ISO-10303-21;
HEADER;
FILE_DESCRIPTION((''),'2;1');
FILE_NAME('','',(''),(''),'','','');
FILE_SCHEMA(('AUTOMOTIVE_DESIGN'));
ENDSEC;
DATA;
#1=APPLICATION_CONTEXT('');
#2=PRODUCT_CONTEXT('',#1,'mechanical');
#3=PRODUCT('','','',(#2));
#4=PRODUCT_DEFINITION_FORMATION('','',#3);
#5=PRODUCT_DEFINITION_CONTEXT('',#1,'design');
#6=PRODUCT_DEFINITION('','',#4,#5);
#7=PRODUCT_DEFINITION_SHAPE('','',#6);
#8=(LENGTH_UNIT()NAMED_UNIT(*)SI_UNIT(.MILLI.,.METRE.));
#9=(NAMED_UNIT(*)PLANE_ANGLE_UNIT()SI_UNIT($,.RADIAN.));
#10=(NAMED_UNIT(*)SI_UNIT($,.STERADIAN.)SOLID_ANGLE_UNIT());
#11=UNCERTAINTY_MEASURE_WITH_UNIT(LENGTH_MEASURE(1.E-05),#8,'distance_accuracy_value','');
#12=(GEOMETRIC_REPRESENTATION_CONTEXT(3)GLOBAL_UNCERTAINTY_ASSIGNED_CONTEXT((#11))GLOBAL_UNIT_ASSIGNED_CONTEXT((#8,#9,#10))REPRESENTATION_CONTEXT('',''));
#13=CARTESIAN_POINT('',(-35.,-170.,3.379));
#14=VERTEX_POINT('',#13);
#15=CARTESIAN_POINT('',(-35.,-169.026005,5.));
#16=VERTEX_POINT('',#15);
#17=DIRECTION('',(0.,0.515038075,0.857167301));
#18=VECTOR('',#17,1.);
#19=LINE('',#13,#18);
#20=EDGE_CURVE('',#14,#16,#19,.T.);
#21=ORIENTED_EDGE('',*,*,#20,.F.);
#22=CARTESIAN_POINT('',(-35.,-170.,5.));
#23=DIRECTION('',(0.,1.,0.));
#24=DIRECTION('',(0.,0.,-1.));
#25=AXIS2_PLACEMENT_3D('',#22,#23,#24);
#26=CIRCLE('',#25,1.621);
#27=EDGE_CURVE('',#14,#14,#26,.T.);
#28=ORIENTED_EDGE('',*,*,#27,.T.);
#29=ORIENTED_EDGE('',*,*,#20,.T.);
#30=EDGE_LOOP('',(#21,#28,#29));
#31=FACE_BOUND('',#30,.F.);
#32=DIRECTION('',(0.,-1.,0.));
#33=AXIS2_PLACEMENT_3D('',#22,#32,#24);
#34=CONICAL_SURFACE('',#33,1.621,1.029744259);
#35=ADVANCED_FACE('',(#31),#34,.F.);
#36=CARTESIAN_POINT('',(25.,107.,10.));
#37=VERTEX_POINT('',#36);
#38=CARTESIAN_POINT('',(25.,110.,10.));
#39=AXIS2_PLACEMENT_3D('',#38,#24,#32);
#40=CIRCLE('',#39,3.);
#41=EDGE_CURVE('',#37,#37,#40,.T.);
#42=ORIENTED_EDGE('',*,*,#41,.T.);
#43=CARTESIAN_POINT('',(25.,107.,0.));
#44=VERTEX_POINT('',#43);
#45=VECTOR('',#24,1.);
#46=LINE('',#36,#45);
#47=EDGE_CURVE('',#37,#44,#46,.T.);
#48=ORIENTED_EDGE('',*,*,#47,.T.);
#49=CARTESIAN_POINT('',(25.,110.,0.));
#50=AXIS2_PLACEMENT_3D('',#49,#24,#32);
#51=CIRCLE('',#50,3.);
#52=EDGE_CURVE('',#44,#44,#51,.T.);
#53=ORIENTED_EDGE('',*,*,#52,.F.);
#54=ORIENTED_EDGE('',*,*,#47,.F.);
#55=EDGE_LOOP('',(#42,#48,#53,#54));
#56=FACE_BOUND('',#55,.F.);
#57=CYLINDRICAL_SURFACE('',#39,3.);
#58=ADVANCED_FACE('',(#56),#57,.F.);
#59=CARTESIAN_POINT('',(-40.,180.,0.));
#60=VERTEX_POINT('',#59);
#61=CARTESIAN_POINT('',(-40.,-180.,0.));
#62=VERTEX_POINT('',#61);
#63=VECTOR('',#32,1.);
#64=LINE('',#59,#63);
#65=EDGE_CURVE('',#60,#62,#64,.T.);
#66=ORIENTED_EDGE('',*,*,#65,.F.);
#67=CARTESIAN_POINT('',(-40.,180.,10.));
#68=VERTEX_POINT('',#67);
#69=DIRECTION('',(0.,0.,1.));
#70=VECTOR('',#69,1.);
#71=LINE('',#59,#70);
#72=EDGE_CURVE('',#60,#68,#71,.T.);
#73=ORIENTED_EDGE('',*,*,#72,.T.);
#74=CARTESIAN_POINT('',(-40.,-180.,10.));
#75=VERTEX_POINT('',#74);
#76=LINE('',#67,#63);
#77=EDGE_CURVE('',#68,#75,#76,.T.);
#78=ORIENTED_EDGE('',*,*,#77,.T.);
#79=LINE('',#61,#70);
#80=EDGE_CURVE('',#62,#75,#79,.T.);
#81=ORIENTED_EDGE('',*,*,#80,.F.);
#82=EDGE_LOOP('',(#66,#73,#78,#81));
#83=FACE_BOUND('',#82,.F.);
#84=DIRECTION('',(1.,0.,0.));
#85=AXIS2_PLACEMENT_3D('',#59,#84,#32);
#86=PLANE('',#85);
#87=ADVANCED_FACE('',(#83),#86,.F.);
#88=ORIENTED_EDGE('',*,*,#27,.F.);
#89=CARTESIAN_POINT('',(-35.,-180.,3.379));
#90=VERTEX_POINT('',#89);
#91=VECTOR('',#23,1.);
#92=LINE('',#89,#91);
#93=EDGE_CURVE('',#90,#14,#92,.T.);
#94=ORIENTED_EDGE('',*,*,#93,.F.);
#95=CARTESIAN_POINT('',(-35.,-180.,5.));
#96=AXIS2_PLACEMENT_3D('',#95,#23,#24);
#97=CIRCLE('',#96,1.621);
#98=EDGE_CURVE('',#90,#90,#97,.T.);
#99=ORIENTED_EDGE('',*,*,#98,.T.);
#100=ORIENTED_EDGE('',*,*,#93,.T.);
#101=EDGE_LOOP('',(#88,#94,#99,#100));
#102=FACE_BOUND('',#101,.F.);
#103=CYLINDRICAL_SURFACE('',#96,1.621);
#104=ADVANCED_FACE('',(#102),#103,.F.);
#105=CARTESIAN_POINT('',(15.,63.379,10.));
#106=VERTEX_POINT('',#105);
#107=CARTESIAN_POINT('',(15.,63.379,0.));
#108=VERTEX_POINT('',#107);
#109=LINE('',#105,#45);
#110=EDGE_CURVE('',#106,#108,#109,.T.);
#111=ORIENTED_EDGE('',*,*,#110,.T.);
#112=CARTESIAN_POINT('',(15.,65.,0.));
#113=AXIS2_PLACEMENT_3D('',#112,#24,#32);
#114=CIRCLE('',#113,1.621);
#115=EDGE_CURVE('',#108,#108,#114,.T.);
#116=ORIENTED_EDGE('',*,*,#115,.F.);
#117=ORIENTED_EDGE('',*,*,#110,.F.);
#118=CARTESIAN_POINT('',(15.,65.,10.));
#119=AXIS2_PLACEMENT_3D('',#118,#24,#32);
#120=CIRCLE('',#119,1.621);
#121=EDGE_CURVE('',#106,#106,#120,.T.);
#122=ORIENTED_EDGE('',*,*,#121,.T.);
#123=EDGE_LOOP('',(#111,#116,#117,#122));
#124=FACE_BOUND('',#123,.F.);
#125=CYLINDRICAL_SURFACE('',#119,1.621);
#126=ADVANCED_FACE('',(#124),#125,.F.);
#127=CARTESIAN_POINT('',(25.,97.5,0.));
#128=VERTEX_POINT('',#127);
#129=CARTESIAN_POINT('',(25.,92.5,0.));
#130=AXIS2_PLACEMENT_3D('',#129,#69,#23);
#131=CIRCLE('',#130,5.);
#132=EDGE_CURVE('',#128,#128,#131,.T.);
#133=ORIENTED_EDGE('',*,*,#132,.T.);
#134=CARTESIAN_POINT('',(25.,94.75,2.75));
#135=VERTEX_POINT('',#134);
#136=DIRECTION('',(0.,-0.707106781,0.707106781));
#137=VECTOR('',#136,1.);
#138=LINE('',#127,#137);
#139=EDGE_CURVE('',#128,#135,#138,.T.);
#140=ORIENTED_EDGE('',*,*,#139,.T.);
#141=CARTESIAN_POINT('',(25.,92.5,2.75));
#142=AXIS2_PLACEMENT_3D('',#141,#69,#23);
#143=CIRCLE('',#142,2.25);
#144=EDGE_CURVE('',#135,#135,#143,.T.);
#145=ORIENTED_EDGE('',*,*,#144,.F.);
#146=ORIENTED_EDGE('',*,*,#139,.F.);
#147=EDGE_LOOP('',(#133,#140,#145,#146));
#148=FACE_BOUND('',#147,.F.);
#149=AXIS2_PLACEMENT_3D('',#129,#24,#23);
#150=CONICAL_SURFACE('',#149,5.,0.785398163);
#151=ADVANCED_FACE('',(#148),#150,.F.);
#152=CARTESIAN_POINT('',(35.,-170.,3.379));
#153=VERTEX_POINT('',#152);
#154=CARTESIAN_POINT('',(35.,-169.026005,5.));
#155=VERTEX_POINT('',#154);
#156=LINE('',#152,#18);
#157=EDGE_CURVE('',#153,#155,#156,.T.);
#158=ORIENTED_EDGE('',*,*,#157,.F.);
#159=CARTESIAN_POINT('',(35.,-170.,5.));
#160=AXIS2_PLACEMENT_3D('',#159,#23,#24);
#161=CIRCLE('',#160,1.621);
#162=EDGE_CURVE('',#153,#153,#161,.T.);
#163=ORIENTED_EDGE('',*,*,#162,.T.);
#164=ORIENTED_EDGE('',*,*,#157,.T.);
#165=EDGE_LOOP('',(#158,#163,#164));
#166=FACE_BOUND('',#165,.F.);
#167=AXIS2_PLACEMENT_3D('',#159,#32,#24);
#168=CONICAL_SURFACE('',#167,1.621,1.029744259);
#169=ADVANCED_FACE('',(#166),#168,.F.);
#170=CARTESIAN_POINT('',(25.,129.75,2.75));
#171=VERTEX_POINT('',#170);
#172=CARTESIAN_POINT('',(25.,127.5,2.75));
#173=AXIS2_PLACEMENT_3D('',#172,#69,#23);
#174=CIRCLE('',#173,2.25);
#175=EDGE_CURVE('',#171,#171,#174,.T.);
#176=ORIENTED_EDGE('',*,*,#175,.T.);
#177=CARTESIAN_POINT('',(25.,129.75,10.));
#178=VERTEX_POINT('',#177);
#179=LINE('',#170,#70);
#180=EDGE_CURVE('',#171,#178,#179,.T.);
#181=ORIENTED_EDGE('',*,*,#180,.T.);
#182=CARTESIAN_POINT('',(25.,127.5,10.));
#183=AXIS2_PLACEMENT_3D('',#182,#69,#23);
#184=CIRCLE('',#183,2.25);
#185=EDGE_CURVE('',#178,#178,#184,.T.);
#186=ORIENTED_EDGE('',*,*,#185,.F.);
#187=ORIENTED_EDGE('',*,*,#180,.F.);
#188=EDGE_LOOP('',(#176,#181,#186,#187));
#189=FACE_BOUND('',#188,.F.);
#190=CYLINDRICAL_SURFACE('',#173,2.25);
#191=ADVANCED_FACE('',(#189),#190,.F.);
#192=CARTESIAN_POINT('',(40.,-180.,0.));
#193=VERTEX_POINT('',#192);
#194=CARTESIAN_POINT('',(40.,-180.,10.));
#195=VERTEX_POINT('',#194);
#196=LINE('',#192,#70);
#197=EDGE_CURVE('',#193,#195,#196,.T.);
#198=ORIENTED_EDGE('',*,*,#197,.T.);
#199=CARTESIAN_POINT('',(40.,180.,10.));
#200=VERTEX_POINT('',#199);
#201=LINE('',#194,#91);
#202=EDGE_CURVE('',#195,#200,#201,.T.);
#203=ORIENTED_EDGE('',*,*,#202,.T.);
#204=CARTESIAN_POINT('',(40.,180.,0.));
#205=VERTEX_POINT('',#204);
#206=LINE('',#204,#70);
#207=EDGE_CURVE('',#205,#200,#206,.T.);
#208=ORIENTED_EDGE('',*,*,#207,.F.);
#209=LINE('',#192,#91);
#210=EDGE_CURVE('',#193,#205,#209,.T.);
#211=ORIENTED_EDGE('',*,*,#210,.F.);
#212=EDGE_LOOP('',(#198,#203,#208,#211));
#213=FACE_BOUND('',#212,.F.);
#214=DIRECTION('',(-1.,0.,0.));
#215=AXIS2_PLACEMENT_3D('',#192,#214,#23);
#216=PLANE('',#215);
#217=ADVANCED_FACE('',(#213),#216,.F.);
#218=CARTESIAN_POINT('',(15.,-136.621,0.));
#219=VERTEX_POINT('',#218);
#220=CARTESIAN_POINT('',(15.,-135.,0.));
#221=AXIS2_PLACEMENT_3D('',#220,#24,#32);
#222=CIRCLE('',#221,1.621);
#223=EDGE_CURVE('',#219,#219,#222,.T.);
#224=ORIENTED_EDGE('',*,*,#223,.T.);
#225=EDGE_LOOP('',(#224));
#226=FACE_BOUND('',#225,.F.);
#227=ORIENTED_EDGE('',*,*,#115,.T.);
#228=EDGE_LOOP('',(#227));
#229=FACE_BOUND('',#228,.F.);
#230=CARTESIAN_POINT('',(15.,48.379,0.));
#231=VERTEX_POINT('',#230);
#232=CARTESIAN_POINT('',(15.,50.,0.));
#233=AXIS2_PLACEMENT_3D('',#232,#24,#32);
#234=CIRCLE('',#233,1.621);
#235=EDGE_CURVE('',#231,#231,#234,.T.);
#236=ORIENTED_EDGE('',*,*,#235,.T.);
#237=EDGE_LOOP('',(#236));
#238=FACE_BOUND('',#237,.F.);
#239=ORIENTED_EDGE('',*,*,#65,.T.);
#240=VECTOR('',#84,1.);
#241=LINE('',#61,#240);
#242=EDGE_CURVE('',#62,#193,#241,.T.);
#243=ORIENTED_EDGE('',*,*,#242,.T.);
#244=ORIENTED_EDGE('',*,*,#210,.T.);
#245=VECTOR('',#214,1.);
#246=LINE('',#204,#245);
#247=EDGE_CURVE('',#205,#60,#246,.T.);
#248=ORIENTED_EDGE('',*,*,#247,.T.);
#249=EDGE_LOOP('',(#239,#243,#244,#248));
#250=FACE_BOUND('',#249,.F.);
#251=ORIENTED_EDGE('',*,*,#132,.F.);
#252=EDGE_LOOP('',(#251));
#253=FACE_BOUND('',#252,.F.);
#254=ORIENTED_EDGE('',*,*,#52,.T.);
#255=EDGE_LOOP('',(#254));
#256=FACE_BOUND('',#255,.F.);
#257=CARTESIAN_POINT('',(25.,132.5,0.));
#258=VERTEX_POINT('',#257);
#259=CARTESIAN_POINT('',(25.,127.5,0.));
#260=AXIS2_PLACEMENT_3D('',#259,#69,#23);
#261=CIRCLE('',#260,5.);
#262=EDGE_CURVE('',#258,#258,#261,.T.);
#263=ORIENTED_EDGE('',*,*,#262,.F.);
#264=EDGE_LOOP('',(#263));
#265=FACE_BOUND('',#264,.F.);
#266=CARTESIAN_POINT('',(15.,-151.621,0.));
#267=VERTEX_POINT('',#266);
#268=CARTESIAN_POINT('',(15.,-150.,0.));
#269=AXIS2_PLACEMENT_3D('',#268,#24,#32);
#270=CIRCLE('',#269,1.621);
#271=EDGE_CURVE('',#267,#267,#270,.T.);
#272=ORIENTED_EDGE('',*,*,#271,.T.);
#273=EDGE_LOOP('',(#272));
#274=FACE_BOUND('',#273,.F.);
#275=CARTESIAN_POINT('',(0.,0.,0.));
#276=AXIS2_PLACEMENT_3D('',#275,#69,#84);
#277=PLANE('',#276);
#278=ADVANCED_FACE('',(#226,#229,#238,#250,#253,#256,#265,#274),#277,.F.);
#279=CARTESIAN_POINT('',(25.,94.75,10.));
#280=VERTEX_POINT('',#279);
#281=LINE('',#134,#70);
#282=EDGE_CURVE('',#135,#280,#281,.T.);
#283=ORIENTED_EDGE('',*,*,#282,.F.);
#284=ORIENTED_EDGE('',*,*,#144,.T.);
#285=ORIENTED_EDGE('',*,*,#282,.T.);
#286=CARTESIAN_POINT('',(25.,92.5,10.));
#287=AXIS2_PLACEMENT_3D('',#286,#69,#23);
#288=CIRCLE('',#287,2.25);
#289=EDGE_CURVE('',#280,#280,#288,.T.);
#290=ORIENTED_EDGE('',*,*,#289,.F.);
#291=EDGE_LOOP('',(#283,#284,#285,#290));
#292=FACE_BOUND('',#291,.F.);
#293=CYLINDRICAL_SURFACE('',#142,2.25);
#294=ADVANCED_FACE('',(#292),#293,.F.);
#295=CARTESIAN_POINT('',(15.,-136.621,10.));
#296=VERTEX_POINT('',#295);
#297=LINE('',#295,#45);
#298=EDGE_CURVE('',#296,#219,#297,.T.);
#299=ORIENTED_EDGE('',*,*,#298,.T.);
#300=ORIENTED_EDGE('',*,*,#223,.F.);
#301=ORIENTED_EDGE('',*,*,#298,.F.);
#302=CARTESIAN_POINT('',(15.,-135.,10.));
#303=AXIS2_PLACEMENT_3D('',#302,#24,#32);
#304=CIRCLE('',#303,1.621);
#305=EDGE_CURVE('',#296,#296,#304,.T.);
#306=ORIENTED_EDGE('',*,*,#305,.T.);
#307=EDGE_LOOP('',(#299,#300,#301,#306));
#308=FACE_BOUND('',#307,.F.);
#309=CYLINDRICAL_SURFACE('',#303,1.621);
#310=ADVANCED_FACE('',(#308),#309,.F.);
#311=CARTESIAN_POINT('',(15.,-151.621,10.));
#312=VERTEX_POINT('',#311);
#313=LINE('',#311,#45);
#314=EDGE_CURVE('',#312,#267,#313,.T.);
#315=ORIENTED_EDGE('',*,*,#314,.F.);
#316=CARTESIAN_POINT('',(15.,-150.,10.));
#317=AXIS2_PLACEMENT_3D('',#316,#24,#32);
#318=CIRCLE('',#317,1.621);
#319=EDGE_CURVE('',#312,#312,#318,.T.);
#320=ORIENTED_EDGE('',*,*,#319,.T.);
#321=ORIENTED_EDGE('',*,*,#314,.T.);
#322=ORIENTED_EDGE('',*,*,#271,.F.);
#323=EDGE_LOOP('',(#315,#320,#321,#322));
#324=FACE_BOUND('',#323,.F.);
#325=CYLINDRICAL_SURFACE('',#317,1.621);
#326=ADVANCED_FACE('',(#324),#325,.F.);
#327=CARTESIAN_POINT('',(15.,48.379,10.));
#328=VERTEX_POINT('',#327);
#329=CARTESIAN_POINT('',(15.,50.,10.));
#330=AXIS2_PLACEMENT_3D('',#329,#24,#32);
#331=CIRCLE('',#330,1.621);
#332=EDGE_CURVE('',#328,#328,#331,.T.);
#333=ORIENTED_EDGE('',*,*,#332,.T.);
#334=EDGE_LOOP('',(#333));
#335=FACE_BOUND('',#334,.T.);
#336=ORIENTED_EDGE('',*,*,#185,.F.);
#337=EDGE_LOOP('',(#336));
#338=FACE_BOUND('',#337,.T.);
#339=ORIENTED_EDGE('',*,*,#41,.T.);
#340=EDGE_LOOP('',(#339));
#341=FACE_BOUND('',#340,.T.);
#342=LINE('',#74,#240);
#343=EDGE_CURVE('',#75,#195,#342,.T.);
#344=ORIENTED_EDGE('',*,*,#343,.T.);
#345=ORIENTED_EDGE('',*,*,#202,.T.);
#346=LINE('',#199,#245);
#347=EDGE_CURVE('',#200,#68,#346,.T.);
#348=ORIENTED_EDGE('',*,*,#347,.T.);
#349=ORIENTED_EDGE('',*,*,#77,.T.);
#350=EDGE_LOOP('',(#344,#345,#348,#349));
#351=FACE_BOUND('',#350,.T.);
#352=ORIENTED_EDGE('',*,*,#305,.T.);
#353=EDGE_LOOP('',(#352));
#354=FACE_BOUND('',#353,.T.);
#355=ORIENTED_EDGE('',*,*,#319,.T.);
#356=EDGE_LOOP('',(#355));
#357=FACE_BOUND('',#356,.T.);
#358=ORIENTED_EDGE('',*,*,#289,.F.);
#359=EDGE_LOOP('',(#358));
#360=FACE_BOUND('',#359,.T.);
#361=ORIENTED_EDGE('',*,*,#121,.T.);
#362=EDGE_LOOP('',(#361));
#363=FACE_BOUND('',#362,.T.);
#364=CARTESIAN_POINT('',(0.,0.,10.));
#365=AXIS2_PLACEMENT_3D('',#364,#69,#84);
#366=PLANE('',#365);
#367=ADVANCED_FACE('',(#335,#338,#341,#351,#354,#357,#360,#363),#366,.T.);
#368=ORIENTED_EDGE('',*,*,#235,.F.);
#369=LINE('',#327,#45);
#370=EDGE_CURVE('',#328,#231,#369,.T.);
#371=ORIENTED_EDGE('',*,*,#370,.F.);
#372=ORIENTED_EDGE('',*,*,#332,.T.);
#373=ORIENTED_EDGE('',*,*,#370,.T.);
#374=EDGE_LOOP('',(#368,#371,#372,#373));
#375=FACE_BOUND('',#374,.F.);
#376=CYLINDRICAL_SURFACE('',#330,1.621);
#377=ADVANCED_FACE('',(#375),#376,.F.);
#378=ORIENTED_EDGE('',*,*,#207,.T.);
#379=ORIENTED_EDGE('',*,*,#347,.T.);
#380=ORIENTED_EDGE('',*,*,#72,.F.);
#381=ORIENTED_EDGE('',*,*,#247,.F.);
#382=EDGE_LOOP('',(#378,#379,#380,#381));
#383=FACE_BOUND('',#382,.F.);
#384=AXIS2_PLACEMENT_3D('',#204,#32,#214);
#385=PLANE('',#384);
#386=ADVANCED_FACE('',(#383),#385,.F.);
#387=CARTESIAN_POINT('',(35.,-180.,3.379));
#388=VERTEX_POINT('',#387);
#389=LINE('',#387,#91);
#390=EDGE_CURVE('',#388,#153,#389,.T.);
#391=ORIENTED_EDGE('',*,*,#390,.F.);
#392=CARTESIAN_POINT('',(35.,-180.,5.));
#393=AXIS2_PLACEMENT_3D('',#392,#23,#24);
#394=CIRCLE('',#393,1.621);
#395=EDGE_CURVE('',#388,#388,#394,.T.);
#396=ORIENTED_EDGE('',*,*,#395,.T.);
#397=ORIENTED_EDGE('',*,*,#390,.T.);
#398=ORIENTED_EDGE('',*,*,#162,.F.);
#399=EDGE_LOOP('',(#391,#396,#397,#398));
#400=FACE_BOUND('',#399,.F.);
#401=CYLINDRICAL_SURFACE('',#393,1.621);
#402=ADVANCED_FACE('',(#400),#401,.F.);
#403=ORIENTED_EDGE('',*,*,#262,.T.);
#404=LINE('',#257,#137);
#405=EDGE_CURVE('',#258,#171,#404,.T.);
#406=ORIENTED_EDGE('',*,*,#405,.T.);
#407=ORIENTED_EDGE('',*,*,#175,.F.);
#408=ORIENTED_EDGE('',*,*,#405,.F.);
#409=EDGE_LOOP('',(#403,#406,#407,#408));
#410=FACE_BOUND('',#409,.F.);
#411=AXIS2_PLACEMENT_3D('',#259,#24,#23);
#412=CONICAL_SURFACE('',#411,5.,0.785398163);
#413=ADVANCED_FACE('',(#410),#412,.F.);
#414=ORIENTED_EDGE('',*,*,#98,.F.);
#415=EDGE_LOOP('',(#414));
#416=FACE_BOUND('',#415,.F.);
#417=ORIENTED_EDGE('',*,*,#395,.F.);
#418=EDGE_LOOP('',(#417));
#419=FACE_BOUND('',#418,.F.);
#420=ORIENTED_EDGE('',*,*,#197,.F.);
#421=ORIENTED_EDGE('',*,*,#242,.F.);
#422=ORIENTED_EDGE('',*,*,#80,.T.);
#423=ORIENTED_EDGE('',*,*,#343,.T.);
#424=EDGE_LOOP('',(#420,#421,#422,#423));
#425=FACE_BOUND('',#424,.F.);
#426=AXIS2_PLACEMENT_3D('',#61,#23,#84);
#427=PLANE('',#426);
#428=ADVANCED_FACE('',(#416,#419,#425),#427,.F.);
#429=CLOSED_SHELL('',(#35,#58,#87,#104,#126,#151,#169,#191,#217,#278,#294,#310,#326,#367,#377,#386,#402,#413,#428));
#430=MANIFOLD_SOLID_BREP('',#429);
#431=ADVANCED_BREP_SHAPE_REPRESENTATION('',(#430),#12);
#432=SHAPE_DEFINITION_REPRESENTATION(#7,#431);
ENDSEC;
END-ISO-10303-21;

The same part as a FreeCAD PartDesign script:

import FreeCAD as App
import Part
import Sketcher

V = App.Vector
Q = App.Units.Quantity

doc = App.newDocument("Part")
body = doc.addObject("PartDesign::Body", "Body")

# Sketch on XY plane
sketch1 = body.newObject("Sketcher::SketchObject", "Sketch")
sketch1.AttachmentSupport = (doc.getObject("XY_Plane"), [""])
sketch1.MapMode = "FlatFace"
sketch1.addGeometry([
    Part.LineSegment(V(40, -180, 0), V(40, 180, 0)),
    Part.LineSegment(V(40, 180, 0), V(-40, 180, 0)),
    Part.LineSegment(V(-40, 180, 0), V(-40, -180, 0)),
    Part.LineSegment(V(-40, -180, 0), V(40, -180, 0)),
], False)
sketch1.addConstraint([
    Sketcher.Constraint("Coincident", 0, 2, 1, 1),
    Sketcher.Constraint("Coincident", 1, 2, 2, 1),
    Sketcher.Constraint("Coincident", 2, 2, 3, 1),
    Sketcher.Constraint("Coincident", 3, 2, 0, 1),
    Sketcher.Constraint("Vertical", 0),
    Sketcher.Constraint("Horizontal", 1),
    Sketcher.Constraint("Vertical", 2),
    Sketcher.Constraint("Horizontal", 3),
    Sketcher.Constraint("Symmetric", 0, 2, 2, 2, -1, 1),
    Sketcher.Constraint("DistanceX", 1, 2, 1, 1, Q("80 mm")),
    Sketcher.Constraint("DistanceY", 0, 1, 0, 2, Q("360 mm")),
])
pad1 = body.newObject("PartDesign::Pad", "Pad")
pad1.Profile = sketch1
pad1.Length = 10

# Sketch on XY plane
sketch2 = body.newObject("Sketcher::SketchObject", "Sketch001")
sketch2.AttachmentSupport = (doc.getObject("XY_Plane"), [""])
sketch2.MapMode = "FlatFace"
sketch2.AttachmentOffset = App.Placement(V(0, 0, 10), App.Rotation())
sketch2.addGeometry(Part.Circle(V(25, 110, 0), V(0, 0, 1), 3), False)
sketch2.addConstraint([
    Sketcher.Constraint("Diameter", 0, Q("6 mm")),
    Sketcher.Constraint("DistanceX", -1, 1, 0, 3, Q("25 mm")),
    Sketcher.Constraint("DistanceY", -1, 1, 0, 3, Q("110 mm")),
])
doc.recompute()
hole = body.newObject("PartDesign::Hole", "Hole")
hole.Profile = sketch2
hole.ThreadType = "None"
hole.Diameter = 6
hole.DepthType = "ThroughAll"

# Sketch on XY plane
sketch3 = body.newObject("Sketcher::SketchObject", "Sketch002")
sketch3.AttachmentSupport = (doc.getObject("XY_Plane"), [""])
sketch3.MapMode = "FlatFace"
sketch3.addGeometry([
    Part.Circle(V(25, 92.5, 0), V(0, 0, 1), 2.25),
    Part.Circle(V(25, 127.5, 0), V(0, 0, 1), 2.25),
], False)
sketch3.addConstraint([
    Sketcher.Constraint("Equal", 0, 1),
    Sketcher.Constraint("Vertical", 0, 3, 1, 3),
    Sketcher.Constraint("Diameter", 0, Q("4.5 mm")),
    Sketcher.Constraint("DistanceX", -1, 1, 0, 3, Q("25 mm")),
    Sketcher.Constraint("DistanceY", 0, 3, 1, 3, Q("35 mm")),
    Sketcher.Constraint("DistanceY", -1, 1, 0, 3, Q("92.5 mm")),
])
doc.recompute()
hole2 = body.newObject("PartDesign::Hole", "Hole001")
hole2.Profile = sketch3
hole2.ThreadType = "None"
hole2.Diameter = 4.5
hole2.DepthType = "ThroughAll"
hole2.HoleCutType = "Countersink"
hole2.HoleCutDiameter = 10
hole2.HoleCutCountersinkAngle = 90
hole2.Reversed = True

# Sketch on XY plane
sketch4 = body.newObject("Sketcher::SketchObject", "Sketch003")
sketch4.AttachmentSupport = (doc.getObject("XY_Plane"), [""])
sketch4.MapMode = "FlatFace"
sketch4.AttachmentOffset = App.Placement(V(0, 0, 10), App.Rotation())
sketch4.addGeometry([
    Part.Circle(V(15, -150, 0), V(0, 0, 1), 1.621),
    Part.Circle(V(15, -135, 0), V(0, 0, 1), 1.621),
], False)
sketch4.addConstraint([
    Sketcher.Constraint("Equal", 0, 1),
    Sketcher.Constraint("Vertical", 0, 3, 1, 3),
    Sketcher.Constraint("Diameter", 0, Q("3.242 mm")),
    Sketcher.Constraint("DistanceX", -1, 1, 0, 3, Q("15 mm")),
    Sketcher.Constraint("DistanceY", 0, 3, -1, 1, Q("150 mm")),
    Sketcher.Constraint("DistanceY", 1, 3, -1, 1, Q("135 mm")),
])
doc.recompute()
hole3 = body.newObject("PartDesign::Hole", "Hole002")
hole3.Profile = sketch4
hole3.ThreadType = "None"
hole3.Diameter = 3.242
hole3.DepthType = "ThroughAll"
doc.recompute()

linearpattern = body.newObject("PartDesign::LinearPattern", "LinearPattern")
linearpattern.Originals = [hole3]
linearpattern.Direction = (doc.getObject("Y_Axis"), [""])
linearpattern.Mode = "offset"
linearpattern.Offset = 200
linearpattern.Occurrences = 2
body.Tip = linearpattern

# Sketch on XZ plane
sketch5 = body.newObject("Sketcher::SketchObject", "Sketch004")
sketch5.AttachmentSupport = (doc.getObject("XZ_Plane"), [""])
sketch5.MapMode = "FlatFace"
sketch5.AttachmentOffset = App.Placement(V(0, 0, 180), App.Rotation())
sketch5.addGeometry([
    Part.Circle(V(-35, 5, 0), V(0, 0, 1), 1.621),
    Part.Circle(V(35, 5, 0), V(0, 0, 1), 1.621),
], False)
sketch5.addConstraint([
    Sketcher.Constraint("Equal", 0, 1),
    Sketcher.Constraint("Symmetric", 0, 3, 1, 3, -2),
    Sketcher.Constraint("Diameter", 0, Q("3.242 mm")),
    Sketcher.Constraint("DistanceX", 0, 3, -1, 1, Q("35 mm")),
    Sketcher.Constraint("DistanceY", -1, 1, 0, 3, Q("5 mm")),
])
doc.recompute()
hole4 = body.newObject("PartDesign::Hole", "Hole003")
hole4.Profile = sketch5
hole4.ThreadType = "None"
hole4.Diameter = 3.242
hole4.DepthType = "Dimension"
hole4.Depth = 10
hole4.DrillPoint = "Angled"
hole4.DrillPointAngle = 118

doc.recompute()
